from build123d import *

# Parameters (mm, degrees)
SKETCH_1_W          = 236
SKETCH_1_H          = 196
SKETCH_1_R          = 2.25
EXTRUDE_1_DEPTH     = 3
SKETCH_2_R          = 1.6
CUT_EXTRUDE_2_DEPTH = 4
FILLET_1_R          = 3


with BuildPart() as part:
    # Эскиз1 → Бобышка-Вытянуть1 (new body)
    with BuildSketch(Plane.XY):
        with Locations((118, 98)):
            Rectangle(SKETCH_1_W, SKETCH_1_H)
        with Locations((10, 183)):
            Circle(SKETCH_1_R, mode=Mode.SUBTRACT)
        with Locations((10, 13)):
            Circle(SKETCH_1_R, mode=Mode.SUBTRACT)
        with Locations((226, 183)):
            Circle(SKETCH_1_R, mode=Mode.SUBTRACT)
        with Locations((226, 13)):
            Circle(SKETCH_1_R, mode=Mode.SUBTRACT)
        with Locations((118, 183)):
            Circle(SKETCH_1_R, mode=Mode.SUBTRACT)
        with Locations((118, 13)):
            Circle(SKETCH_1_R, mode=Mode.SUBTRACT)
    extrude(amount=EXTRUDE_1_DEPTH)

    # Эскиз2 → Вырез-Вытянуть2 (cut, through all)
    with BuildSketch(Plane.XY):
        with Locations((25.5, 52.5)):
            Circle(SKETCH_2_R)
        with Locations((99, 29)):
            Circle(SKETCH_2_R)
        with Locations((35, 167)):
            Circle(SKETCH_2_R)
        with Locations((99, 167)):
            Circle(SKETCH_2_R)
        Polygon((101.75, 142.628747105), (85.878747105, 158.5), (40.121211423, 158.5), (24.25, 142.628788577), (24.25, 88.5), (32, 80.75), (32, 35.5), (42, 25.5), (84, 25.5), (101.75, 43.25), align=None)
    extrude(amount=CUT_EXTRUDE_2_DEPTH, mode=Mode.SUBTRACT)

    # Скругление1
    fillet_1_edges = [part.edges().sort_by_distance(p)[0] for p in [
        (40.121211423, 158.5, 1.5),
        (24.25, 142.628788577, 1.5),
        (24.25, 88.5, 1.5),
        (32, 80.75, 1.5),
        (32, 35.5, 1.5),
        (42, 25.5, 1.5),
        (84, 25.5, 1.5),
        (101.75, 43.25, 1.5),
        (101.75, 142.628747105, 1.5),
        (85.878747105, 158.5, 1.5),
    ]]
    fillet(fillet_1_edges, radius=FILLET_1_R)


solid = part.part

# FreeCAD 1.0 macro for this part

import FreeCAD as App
import Part
import Sketcher
from FreeCAD import Vector
Q = App.Units.Quantity


def edges_at(feature, points):
    """Names of the edges that pass closest to the given points."""
    edges = feature.Shape.Edges
    near = lambda p: min(range(len(edges)), key=lambda i: edges[i].distToShape(Part.Vertex(*p))[0])
    return sorted({f"Edge{near(p) + 1}" for p in points})


def add_polygon(sketch, points):
    """Adds a closed chain of lines whose ends are joined by coincident constraints."""
    first, n = sketch.GeometryCount, len(points)
    for a, b in zip(points, points[1:] + points[:1]):
        sketch.addGeometry(Part.LineSegment(App.Vector(*a, 0), App.Vector(*b, 0)), False)
    for i in range(n):
        sketch.addConstraint(Sketcher.Constraint("Coincident", first + i, 2, first + (i + 1) % n, 1))

doc = App.newDocument("Part")
params = doc.addObject("Spreadsheet::Sheet", "Params")
for row, (alias, value) in enumerate([
    ("sketch1_diameter", "4.5 mm"),
    ("sketch1_width", "236 mm"),
    ("sketch1_height", "196 mm"),
    ("pad1_length", "3 mm"),
    ("sketch2_diameter", "3.2 mm"),
    ("sketch2_width", "42 mm"),
    ("sketch2_height", "45.25 mm"),
    ("fillet_radius", "3 mm"),
], start=1):
    params.set(f"A{row}", alias)
    params.set(f"B{row}", "=" + value)
    params.setAlias(f"B{row}", alias)

body = doc.addObject("PartDesign::Body", "Body")

sketch1 = doc.addObject("Sketcher::SketchObject", "Sketch")
body.addObject(sketch1)
sketch1.AttachmentSupport = (doc.XY_Plane, [""])
sketch1.MapMode = "FlatFace"
add_polygon(sketch1, [(0, 196), (0, 0), (236, 0), (236, 196)])
sketch1.addGeometry(Part.Circle(Vector(10, 13, 0), Vector(0, 0, 1), 2.2), False)
sketch1.addGeometry(Part.Circle(Vector(118, 13, 0), Vector(0, 0, 1), 2.2), False)
sketch1.addGeometry(Part.Circle(Vector(226, 13, 0), Vector(0, 0, 1), 2.2), False)
sketch1.addGeometry(Part.Circle(Vector(10, 183, 0), Vector(0, 0, 1), 2.2), False)
sketch1.addGeometry(Part.Circle(Vector(118, 183, 0), Vector(0, 0, 1), 2.2), False)
sketch1.addGeometry(Part.Circle(Vector(226, 183, 0), Vector(0, 0, 1), 2.2), False)
sketch1.addConstraint([
    Sketcher.Constraint("Vertical", 0),
    Sketcher.Constraint("Horizontal", 1),
    Sketcher.Constraint("Vertical", 2),
    Sketcher.Constraint("Horizontal", 3),
    Sketcher.Constraint("Coincident", 0, 2, -1, 1),
    Sketcher.Constraint("Equal", 4, 5),
    Sketcher.Constraint("Equal", 5, 6),
    Sketcher.Constraint("Equal", 6, 7),
    Sketcher.Constraint("Equal", 7, 8),
    Sketcher.Constraint("Equal", 8, 9),
    Sketcher.Constraint("Horizontal", 4, 3, 5, 3),
    Sketcher.Constraint("Horizontal", 5, 3, 6, 3),
    Sketcher.Constraint("Horizontal", 7, 3, 8, 3),
    Sketcher.Constraint("Horizontal", 8, 3, 9, 3),
    Sketcher.Constraint("Vertical", 4, 3, 7, 3),
    Sketcher.Constraint("Vertical", 5, 3, 8, 3),
    Sketcher.Constraint("Vertical", 6, 3, 9, 3),
    Sketcher.Constraint("Diameter", 4, Q("4.5 mm")),
    Sketcher.Constraint("DistanceX", 1, 1, 1, 2, Q("236 mm")),
    Sketcher.Constraint("DistanceY", 0, 2, 0, 1, Q("196 mm")),
    Sketcher.Constraint("DistanceX", -1, 1, 4, 3, Q("10 mm")),
    Sketcher.Constraint("DistanceY", -1, 1, 4, 3, Q("13 mm")),
    Sketcher.Constraint("DistanceX", -1, 1, 5, 3, Q("118 mm")),
    Sketcher.Constraint("DistanceX", -1, 1, 6, 3, Q("226 mm")),
    Sketcher.Constraint("DistanceY", -1, 1, 7, 3, Q("183 mm")),
])
sketch1.setExpression("Constraints[21]", "Params.sketch1_diameter")
sketch1.setExpression("Constraints[22]", "Params.sketch1_width")
sketch1.setExpression("Constraints[23]", "Params.sketch1_height")
pad1 = doc.addObject("PartDesign::Pad", "Pad")
body.addObject(pad1)
pad1.Profile = sketch1
pad1.setExpression("Length", "Params.pad1_length")

sketch2 = doc.addObject("Sketcher::SketchObject", "Sketch001")
body.addObject(sketch2)
sketch2.AttachmentSupport = (doc.XY_Plane, [""])
sketch2.MapMode = "FlatFace"
sketch2.addGeometry(Part.Circle(Vector(25.5, 52.5, 0), Vector(0, 0, 1), 1.6), False)
sketch2.addGeometry(Part.Circle(Vector(99, 29, 0), Vector(0, 0, 1), 1.6), False)
sketch2.addGeometry(Part.Circle(Vector(35, 167, 0), Vector(0, 0, 1), 1.6), False)
sketch2.addGeometry(Part.Circle(Vector(99, 167, 0), Vector(0, 0, 1), 1.6), False)
add_polygon(sketch2, [(101.8, 142.6), (85.9, 158.5), (40.1, 158.5), (24.2, 142.6), (24.2, 88.5), (32, 80.8), (32, 35.5), (42, 25.5), (84, 25.5), (101.8, 43.2)])
sketch2.addConstraint([
    Sketcher.Constraint("Horizontal", 5),
    Sketcher.Constraint("Vertical", 7),
    Sketcher.Constraint("Vertical", 9),
    Sketcher.Constraint("Horizontal", 11),
    Sketcher.Constraint("Vertical", 13),
    Sketcher.Constraint("Equal", 0, 1),
    Sketcher.Constraint("Equal", 1, 2),
    Sketcher.Constraint("Equal", 2, 3),
    Sketcher.Constraint("Perpendicular", 4, 6),
    Sketcher.Constraint("Perpendicular", 6, 8),
    Sketcher.Constraint("Parallel", 8, 10),
    Sketcher.Constraint("Perpendicular", 10, 12),
    Sketcher.Constraint("Horizontal", 2, 3, 3, 3),
    Sketcher.Constraint("Vertical", 1, 3, 3, 3),
    Sketcher.Constraint("Diameter", 0, Q("3.2 mm")),
    Sketcher.Constraint("DistanceX", 11, 1, 11, 2, Q("42 mm")),
    Sketcher.Constraint("Angle", 4, Q("135 deg")),
    Sketcher.Constraint("DistanceX", -1, 1, 1, 3, Q("99 mm")),
    Sketcher.Constraint("DistanceY", -1, 1, 1, 3, Q("29 mm")),
    Sketcher.Constraint("DistanceX", -1, 1, 2, 3, Q("35 mm")),
    Sketcher.Constraint("DistanceY", -1, 1, 2, 3, Q("167 mm")),
    Sketcher.Constraint("DistanceX", -1, 1, 8, 2, Q("32 mm")),
    Sketcher.Constraint("DistanceX", -1, 1, 10, 2, Q("42 mm")),
    Sketcher.Constraint("DistanceY", 0, 3, 4, 2, Q("106 mm")),
    Sketcher.Constraint("DistanceY", 0, 3, 7, 2, Q("36 mm")),
    Sketcher.Constraint("DistanceY", 9, 2, 0, 3, Q("17 mm")),
    Sketcher.Constraint("DistanceY", 9, 2, 9, 1, Q("45.25 mm")),
    Sketcher.Constraint("DistanceX", -1, 1, 0, 3, Q("25.5 mm")),
    Sketcher.Constraint("DistanceY", -1, 1, 0, 3, Q("52.5 mm")),
    Sketcher.Constraint("DistanceX", 6, 2, 13, 2, Q("77.5 mm")),
    Sketcher.Constraint("DistanceY", 7, 2, 7, 1, Q("54.128789 mm")),
    Sketcher.Constraint("Distance", 4, Q("22.445341 mm")),
])
sketch2.setExpression("Constraints[24]", "Params.sketch2_diameter")
sketch2.setExpression("Constraints[25]", "Params.sketch2_width")
sketch2.setExpression("Constraints[36]", "Params.sketch2_height")
pocket1 = doc.addObject("PartDesign::Pocket", "Pocket")
body.addObject(pocket1)
pocket1.Profile = sketch2
pocket1.Type = "ThroughAll"
pocket1.Reversed = True
doc.recompute()

fillet = doc.addObject("PartDesign::Fillet", "Fillet")
body.addObject(fillet)
fillet.Base = (pocket1, edges_at(pocket1, [
    (40.121, 158.5, 1.5),
    (24.25, 142.629, 1.5),
    (24.25, 88.5, 1.5),
    (32, 80.75, 1.5),
    (32, 35.5, 1.5),
    (42, 25.5, 1.5),
    (84, 25.5, 1.5),
    (101.75, 43.25, 1.5),
    (101.75, 142.629, 1.5),
    (85.879, 158.5, 1.5),
]))
fillet.setExpression("Radius", "Params.fillet_radius")

doc.recompute()
